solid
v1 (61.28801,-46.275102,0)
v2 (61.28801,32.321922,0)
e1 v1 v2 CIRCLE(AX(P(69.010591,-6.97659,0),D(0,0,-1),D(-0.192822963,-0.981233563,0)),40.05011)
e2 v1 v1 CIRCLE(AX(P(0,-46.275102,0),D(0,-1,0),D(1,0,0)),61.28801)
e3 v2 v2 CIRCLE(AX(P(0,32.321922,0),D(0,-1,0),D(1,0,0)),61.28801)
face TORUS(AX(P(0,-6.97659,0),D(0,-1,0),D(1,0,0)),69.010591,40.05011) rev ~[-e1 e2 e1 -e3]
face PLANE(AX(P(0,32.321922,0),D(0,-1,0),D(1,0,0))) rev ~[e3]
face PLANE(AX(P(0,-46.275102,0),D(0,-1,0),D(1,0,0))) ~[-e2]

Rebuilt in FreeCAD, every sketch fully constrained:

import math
import FreeCAD as App
import Part
import Sketcher
from FreeCAD import Vector

doc = App.newDocument("Part")
body = doc.addObject("PartDesign::Body", "Body")

sketch1 = doc.addObject("Sketcher::SketchObject", "Sketch")
body.addObject(sketch1)
sketch1.AttachmentSupport = (doc.XY_Plane, [""])
sketch1.MapMode = "FlatFace"
sketch1.addGeometry(Part.LineSegment(Vector(61, 32, 0), Vector(0, 32, 0)), False)
sketch1.addGeometry(Part.LineSegment(Vector(0, 32, 0), Vector(0, -46, 0)), False)
sketch1.addGeometry(Part.LineSegment(Vector(0, -46, 0), Vector(61, -46, 0)), False)
sketch1.addGeometry(Part.ArcOfCircle(Part.Circle(Vector(69, -7, 0), Vector(0, 0, 1), 40), math.radians(101), math.radians(259)), False)
sketch1.addConstraint(Sketcher.Constraint("Coincident", 0, 2, 1, 1))
sketch1.addConstraint(Sketcher.Constraint("Coincident", 1, 2, 2, 1))
sketch1.addConstraint(Sketcher.Constraint("Coincident", 2, 2, 3, 2))
sketch1.addConstraint(Sketcher.Constraint("Coincident", 3, 1, 0, 1))
sketch1.addConstraint(Sketcher.Constraint("Horizontal", 0))
sketch1.addConstraint(Sketcher.Constraint("Vertical", 1))
sketch1.addConstraint(Sketcher.Constraint("Horizontal", 2))
sketch1.addConstraint(Sketcher.Constraint("PointOnObject", 0, 2, -2))
sketch1.addConstraint(Sketcher.Constraint("Vertical", 2, 2, 3, 1))
sketch1.addConstraint(Sketcher.Constraint("Radius", 3, 40.05011))
sketch1.addConstraint(Sketcher.Constraint("DistanceX", 0, 2, 0, 1, 61.28801))
sketch1.addConstraint(Sketcher.Constraint("DistanceY", 1, 2, -1, 1, 46.275102))
sketch1.addConstraint(Sketcher.Constraint("DistanceY", 1, 2, 1, 1, 78.597024))
revolution = doc.addObject("PartDesign::Revolution", "Revolution")
body.addObject(revolution)
revolution.Profile = sketch1
revolution.ReferenceAxis = (sketch1, ["V_Axis"])
revolution.Angle = 360

doc.recompute()
